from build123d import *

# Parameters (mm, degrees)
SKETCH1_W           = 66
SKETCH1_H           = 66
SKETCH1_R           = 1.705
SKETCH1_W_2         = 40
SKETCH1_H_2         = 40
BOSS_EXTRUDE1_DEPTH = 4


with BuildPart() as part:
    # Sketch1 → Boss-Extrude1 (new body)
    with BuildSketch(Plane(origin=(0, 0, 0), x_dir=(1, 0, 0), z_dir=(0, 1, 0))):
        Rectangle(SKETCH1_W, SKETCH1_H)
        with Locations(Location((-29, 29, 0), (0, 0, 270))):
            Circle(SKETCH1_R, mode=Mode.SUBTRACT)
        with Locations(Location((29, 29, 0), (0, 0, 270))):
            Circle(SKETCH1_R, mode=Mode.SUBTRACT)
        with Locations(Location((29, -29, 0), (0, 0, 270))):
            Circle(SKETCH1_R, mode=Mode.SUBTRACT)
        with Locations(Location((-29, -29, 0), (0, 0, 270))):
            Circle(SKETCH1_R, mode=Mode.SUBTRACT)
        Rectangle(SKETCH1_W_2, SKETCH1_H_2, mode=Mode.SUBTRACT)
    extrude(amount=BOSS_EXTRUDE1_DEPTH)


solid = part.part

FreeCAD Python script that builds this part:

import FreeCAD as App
import Part
import Sketcher

doc = App.newDocument("Part")
body = doc.addObject("PartDesign::Body", "Body")

sketch1 = body.newObject("Sketcher::SketchObject", "Sketch")
sketch1.AttachmentSupport = (doc.getObject("XZ_Plane"), [""])
sketch1.MapMode = "FlatFace"
sketch1.addGeometry([
    Part.LineSegment(App.Vector(-33, -33, 0), App.Vector(-33, 33, 0)),
    Part.LineSegment(App.Vector(-33, 33, 0), App.Vector(33, 33, 0)),
    Part.LineSegment(App.Vector(33, 33, 0), App.Vector(33, -33, 0)),
    Part.LineSegment(App.Vector(33, -33, 0), App.Vector(-33, -33, 0)),
    Part.Circle(App.Vector(-29, 29, 0), App.Vector(0, 0, 1), 1.7),
    Part.Circle(App.Vector(29, 29, 0), App.Vector(0, 0, 1), 1.7),
    Part.Circle(App.Vector(-29, -29, 0), App.Vector(0, 0, 1), 1.7),
    Part.LineSegment(App.Vector(20, 20, 0), App.Vector(-20, 20, 0)),
    Part.LineSegment(App.Vector(-20, 20, 0), App.Vector(-20, -20, 0)),
    Part.LineSegment(App.Vector(-20, -20, 0), App.Vector(20, -20, 0)),
    Part.LineSegment(App.Vector(20, -20, 0), App.Vector(20, 20, 0)),
    Part.Circle(App.Vector(29, -29, 0), App.Vector(0, 0, 1), 1.7),
], False)
sketch1.addConstraint([
    Sketcher.Constraint("Coincident", 0, 2, 1, 1),
    Sketcher.Constraint("Coincident", 1, 2, 2, 1),
    Sketcher.Constraint("Coincident", 2, 2, 3, 1),
    Sketcher.Constraint("Coincident", 3, 2, 0, 1),
    Sketcher.Constraint("Coincident", 7, 2, 8, 1),
    Sketcher.Constraint("Coincident", 8, 2, 9, 1),
    Sketcher.Constraint("Coincident", 9, 2, 10, 1),
    Sketcher.Constraint("Coincident", 10, 2, 7, 1),
    Sketcher.Constraint("Vertical", 0),
    Sketcher.Constraint("Horizontal", 1),
    Sketcher.Constraint("Vertical", 2),
    Sketcher.Constraint("Horizontal", 3),
    Sketcher.Constraint("Horizontal", 7),
    Sketcher.Constraint("Vertical", 8),
    Sketcher.Constraint("Horizontal", 9),
    Sketcher.Constraint("Vertical", 10),
    Sketcher.Constraint("Equal", 4, 5),
    Sketcher.Constraint("Equal", 5, 6),
    Sketcher.Constraint("Equal", 6, 11),
    Sketcher.Constraint("Symmetric", 5, 3, 6, 3, -1, 1),
    Sketcher.Constraint("Symmetric", 4, 3, 11, 3, -1, 1),
    Sketcher.Constraint("Symmetric", 0, 2, 2, 2, -1, 1),
    Sketcher.Constraint("Symmetric", 7, 2, 9, 2, -1, 1),
    Sketcher.Constraint("Symmetric", 4, 3, 5, 3, -2),
    Sketcher.Constraint("Equal", 3, 0),
    Sketcher.Constraint("Equal", 9, 8),
    Sketcher.Constraint("Diameter", 4, 3.41),
    Sketcher.Constraint("DistanceX", 1, 1, 1, 2, 66.0),
    Sketcher.Constraint("DistanceX", 7, 2, 7, 1, 40.0),
    Sketcher.Constraint("DistanceX", 4, 3, -1, 1, 29.0),
    Sketcher.Constraint("DistanceY", -1, 1, 4, 3, 29.0),
])
pad1 = body.newObject("PartDesign::Pad", "Pad")
pad1.Profile = sketch1
pad1.Length = 4
pad1.Reversed = True

doc.recompute()
